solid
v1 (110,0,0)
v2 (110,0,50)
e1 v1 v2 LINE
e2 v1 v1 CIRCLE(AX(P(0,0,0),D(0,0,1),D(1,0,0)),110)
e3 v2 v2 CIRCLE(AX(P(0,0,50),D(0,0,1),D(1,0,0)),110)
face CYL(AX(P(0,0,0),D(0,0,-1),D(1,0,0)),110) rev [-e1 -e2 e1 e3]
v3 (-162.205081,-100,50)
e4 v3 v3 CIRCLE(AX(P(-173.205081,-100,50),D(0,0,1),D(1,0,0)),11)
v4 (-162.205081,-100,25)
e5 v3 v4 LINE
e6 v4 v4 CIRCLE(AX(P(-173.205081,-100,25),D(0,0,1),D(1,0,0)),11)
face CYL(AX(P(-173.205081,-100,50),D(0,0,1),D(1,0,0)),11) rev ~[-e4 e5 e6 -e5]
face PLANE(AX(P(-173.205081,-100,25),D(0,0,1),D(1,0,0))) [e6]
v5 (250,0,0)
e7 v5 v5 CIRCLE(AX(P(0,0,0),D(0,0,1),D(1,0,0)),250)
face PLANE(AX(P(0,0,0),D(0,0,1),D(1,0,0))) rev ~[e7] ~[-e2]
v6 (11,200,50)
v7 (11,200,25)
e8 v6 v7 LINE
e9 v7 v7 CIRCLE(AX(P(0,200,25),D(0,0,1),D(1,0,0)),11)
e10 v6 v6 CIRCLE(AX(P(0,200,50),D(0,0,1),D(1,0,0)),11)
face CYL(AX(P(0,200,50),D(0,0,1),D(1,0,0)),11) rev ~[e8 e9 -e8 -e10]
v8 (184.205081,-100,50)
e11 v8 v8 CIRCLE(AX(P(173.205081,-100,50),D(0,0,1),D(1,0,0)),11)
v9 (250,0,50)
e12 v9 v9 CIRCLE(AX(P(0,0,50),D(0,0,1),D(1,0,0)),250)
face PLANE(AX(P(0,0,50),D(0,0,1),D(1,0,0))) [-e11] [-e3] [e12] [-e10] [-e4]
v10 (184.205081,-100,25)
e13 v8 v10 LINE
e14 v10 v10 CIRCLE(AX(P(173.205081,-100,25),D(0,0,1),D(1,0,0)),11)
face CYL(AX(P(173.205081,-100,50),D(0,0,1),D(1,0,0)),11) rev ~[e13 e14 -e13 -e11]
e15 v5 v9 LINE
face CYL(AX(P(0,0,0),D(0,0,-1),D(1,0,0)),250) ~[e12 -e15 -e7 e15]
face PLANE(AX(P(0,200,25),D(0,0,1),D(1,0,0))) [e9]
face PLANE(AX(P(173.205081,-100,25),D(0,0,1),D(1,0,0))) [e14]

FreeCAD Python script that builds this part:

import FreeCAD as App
import Part
import Sketcher
from FreeCAD import Vector

doc = App.newDocument("Part")
body = doc.addObject("PartDesign::Body", "Body")

# Sketch on XY plane
sketch1 = doc.addObject("Sketcher::SketchObject", "Sketch")
body.addObject(sketch1)
sketch1.AttachmentSupport = (doc.XY_Plane, [""])
sketch1.MapMode = "FlatFace"
sketch1.addGeometry(Part.Circle(Vector(0, 0, 0), Vector(0, 0, 1), 250), False)
sketch1.addGeometry(Part.Circle(Vector(0, 0, 0), Vector(0, 0, 1), 110), False)
sketch1.addConstraint(Sketcher.Constraint("Coincident", 0, 3, -1, 1))
sketch1.addConstraint(Sketcher.Constraint("Coincident", 1, 3, -1, 1))
sketch1.addConstraint(Sketcher.Constraint("Diameter", 0, 500.0))
sketch1.addConstraint(Sketcher.Constraint("Diameter", 1, 220.0))
pad1 = doc.addObject("PartDesign::Pad", "Pad")
body.addObject(pad1)
pad1.Profile = sketch1
pad1.Length = 50

# Sketch on XY plane
sketch2 = doc.addObject("Sketcher::SketchObject", "Sketch001")
body.addObject(sketch2)
sketch2.AttachmentSupport = (doc.XY_Plane, [""])
sketch2.MapMode = "FlatFace"
sketch2.AttachmentOffset = App.Placement(Vector(0, 0, 50), App.Rotation())
sketch2.addGeometry(Part.Circle(Vector(0, 200, 0), Vector(0, 0, 1), 11), False)
sketch2.addGeometry(Part.Circle(Vector(-173.205081, -100, 0), Vector(0, 0, 1), 11), False)
sketch2.addGeometry(Part.Circle(Vector(173.205081, -100, 0), Vector(0, 0, 1), 11), False)
sketch2.addConstraint(Sketcher.Constraint("Equal", 0, 1))
sketch2.addConstraint(Sketcher.Constraint("Equal", 1, 2))
sketch2.addConstraint(Sketcher.Constraint("Symmetric", 1, 3, 2, 3, -2))
sketch2.addConstraint(Sketcher.Constraint("PointOnObject", 0, 3, -2))
sketch2.addConstraint(Sketcher.Constraint("Diameter", 0, 22.0))
sketch2.addConstraint(Sketcher.Constraint("DistanceY", -1, 1, 0, 3, 200.0))
sketch2.addConstraint(Sketcher.Constraint("DistanceY", 1, 3, -1, 1, 100.0))
sketch2.addConstraint(Sketcher.Constraint("DistanceX", 1, 3, -1, 1, 173.205081))
pocket1 = doc.addObject("PartDesign::Pocket", "Pocket")
body.addObject(pocket1)
pocket1.Profile = sketch2
pocket1.Length = 25

doc.recompute()
